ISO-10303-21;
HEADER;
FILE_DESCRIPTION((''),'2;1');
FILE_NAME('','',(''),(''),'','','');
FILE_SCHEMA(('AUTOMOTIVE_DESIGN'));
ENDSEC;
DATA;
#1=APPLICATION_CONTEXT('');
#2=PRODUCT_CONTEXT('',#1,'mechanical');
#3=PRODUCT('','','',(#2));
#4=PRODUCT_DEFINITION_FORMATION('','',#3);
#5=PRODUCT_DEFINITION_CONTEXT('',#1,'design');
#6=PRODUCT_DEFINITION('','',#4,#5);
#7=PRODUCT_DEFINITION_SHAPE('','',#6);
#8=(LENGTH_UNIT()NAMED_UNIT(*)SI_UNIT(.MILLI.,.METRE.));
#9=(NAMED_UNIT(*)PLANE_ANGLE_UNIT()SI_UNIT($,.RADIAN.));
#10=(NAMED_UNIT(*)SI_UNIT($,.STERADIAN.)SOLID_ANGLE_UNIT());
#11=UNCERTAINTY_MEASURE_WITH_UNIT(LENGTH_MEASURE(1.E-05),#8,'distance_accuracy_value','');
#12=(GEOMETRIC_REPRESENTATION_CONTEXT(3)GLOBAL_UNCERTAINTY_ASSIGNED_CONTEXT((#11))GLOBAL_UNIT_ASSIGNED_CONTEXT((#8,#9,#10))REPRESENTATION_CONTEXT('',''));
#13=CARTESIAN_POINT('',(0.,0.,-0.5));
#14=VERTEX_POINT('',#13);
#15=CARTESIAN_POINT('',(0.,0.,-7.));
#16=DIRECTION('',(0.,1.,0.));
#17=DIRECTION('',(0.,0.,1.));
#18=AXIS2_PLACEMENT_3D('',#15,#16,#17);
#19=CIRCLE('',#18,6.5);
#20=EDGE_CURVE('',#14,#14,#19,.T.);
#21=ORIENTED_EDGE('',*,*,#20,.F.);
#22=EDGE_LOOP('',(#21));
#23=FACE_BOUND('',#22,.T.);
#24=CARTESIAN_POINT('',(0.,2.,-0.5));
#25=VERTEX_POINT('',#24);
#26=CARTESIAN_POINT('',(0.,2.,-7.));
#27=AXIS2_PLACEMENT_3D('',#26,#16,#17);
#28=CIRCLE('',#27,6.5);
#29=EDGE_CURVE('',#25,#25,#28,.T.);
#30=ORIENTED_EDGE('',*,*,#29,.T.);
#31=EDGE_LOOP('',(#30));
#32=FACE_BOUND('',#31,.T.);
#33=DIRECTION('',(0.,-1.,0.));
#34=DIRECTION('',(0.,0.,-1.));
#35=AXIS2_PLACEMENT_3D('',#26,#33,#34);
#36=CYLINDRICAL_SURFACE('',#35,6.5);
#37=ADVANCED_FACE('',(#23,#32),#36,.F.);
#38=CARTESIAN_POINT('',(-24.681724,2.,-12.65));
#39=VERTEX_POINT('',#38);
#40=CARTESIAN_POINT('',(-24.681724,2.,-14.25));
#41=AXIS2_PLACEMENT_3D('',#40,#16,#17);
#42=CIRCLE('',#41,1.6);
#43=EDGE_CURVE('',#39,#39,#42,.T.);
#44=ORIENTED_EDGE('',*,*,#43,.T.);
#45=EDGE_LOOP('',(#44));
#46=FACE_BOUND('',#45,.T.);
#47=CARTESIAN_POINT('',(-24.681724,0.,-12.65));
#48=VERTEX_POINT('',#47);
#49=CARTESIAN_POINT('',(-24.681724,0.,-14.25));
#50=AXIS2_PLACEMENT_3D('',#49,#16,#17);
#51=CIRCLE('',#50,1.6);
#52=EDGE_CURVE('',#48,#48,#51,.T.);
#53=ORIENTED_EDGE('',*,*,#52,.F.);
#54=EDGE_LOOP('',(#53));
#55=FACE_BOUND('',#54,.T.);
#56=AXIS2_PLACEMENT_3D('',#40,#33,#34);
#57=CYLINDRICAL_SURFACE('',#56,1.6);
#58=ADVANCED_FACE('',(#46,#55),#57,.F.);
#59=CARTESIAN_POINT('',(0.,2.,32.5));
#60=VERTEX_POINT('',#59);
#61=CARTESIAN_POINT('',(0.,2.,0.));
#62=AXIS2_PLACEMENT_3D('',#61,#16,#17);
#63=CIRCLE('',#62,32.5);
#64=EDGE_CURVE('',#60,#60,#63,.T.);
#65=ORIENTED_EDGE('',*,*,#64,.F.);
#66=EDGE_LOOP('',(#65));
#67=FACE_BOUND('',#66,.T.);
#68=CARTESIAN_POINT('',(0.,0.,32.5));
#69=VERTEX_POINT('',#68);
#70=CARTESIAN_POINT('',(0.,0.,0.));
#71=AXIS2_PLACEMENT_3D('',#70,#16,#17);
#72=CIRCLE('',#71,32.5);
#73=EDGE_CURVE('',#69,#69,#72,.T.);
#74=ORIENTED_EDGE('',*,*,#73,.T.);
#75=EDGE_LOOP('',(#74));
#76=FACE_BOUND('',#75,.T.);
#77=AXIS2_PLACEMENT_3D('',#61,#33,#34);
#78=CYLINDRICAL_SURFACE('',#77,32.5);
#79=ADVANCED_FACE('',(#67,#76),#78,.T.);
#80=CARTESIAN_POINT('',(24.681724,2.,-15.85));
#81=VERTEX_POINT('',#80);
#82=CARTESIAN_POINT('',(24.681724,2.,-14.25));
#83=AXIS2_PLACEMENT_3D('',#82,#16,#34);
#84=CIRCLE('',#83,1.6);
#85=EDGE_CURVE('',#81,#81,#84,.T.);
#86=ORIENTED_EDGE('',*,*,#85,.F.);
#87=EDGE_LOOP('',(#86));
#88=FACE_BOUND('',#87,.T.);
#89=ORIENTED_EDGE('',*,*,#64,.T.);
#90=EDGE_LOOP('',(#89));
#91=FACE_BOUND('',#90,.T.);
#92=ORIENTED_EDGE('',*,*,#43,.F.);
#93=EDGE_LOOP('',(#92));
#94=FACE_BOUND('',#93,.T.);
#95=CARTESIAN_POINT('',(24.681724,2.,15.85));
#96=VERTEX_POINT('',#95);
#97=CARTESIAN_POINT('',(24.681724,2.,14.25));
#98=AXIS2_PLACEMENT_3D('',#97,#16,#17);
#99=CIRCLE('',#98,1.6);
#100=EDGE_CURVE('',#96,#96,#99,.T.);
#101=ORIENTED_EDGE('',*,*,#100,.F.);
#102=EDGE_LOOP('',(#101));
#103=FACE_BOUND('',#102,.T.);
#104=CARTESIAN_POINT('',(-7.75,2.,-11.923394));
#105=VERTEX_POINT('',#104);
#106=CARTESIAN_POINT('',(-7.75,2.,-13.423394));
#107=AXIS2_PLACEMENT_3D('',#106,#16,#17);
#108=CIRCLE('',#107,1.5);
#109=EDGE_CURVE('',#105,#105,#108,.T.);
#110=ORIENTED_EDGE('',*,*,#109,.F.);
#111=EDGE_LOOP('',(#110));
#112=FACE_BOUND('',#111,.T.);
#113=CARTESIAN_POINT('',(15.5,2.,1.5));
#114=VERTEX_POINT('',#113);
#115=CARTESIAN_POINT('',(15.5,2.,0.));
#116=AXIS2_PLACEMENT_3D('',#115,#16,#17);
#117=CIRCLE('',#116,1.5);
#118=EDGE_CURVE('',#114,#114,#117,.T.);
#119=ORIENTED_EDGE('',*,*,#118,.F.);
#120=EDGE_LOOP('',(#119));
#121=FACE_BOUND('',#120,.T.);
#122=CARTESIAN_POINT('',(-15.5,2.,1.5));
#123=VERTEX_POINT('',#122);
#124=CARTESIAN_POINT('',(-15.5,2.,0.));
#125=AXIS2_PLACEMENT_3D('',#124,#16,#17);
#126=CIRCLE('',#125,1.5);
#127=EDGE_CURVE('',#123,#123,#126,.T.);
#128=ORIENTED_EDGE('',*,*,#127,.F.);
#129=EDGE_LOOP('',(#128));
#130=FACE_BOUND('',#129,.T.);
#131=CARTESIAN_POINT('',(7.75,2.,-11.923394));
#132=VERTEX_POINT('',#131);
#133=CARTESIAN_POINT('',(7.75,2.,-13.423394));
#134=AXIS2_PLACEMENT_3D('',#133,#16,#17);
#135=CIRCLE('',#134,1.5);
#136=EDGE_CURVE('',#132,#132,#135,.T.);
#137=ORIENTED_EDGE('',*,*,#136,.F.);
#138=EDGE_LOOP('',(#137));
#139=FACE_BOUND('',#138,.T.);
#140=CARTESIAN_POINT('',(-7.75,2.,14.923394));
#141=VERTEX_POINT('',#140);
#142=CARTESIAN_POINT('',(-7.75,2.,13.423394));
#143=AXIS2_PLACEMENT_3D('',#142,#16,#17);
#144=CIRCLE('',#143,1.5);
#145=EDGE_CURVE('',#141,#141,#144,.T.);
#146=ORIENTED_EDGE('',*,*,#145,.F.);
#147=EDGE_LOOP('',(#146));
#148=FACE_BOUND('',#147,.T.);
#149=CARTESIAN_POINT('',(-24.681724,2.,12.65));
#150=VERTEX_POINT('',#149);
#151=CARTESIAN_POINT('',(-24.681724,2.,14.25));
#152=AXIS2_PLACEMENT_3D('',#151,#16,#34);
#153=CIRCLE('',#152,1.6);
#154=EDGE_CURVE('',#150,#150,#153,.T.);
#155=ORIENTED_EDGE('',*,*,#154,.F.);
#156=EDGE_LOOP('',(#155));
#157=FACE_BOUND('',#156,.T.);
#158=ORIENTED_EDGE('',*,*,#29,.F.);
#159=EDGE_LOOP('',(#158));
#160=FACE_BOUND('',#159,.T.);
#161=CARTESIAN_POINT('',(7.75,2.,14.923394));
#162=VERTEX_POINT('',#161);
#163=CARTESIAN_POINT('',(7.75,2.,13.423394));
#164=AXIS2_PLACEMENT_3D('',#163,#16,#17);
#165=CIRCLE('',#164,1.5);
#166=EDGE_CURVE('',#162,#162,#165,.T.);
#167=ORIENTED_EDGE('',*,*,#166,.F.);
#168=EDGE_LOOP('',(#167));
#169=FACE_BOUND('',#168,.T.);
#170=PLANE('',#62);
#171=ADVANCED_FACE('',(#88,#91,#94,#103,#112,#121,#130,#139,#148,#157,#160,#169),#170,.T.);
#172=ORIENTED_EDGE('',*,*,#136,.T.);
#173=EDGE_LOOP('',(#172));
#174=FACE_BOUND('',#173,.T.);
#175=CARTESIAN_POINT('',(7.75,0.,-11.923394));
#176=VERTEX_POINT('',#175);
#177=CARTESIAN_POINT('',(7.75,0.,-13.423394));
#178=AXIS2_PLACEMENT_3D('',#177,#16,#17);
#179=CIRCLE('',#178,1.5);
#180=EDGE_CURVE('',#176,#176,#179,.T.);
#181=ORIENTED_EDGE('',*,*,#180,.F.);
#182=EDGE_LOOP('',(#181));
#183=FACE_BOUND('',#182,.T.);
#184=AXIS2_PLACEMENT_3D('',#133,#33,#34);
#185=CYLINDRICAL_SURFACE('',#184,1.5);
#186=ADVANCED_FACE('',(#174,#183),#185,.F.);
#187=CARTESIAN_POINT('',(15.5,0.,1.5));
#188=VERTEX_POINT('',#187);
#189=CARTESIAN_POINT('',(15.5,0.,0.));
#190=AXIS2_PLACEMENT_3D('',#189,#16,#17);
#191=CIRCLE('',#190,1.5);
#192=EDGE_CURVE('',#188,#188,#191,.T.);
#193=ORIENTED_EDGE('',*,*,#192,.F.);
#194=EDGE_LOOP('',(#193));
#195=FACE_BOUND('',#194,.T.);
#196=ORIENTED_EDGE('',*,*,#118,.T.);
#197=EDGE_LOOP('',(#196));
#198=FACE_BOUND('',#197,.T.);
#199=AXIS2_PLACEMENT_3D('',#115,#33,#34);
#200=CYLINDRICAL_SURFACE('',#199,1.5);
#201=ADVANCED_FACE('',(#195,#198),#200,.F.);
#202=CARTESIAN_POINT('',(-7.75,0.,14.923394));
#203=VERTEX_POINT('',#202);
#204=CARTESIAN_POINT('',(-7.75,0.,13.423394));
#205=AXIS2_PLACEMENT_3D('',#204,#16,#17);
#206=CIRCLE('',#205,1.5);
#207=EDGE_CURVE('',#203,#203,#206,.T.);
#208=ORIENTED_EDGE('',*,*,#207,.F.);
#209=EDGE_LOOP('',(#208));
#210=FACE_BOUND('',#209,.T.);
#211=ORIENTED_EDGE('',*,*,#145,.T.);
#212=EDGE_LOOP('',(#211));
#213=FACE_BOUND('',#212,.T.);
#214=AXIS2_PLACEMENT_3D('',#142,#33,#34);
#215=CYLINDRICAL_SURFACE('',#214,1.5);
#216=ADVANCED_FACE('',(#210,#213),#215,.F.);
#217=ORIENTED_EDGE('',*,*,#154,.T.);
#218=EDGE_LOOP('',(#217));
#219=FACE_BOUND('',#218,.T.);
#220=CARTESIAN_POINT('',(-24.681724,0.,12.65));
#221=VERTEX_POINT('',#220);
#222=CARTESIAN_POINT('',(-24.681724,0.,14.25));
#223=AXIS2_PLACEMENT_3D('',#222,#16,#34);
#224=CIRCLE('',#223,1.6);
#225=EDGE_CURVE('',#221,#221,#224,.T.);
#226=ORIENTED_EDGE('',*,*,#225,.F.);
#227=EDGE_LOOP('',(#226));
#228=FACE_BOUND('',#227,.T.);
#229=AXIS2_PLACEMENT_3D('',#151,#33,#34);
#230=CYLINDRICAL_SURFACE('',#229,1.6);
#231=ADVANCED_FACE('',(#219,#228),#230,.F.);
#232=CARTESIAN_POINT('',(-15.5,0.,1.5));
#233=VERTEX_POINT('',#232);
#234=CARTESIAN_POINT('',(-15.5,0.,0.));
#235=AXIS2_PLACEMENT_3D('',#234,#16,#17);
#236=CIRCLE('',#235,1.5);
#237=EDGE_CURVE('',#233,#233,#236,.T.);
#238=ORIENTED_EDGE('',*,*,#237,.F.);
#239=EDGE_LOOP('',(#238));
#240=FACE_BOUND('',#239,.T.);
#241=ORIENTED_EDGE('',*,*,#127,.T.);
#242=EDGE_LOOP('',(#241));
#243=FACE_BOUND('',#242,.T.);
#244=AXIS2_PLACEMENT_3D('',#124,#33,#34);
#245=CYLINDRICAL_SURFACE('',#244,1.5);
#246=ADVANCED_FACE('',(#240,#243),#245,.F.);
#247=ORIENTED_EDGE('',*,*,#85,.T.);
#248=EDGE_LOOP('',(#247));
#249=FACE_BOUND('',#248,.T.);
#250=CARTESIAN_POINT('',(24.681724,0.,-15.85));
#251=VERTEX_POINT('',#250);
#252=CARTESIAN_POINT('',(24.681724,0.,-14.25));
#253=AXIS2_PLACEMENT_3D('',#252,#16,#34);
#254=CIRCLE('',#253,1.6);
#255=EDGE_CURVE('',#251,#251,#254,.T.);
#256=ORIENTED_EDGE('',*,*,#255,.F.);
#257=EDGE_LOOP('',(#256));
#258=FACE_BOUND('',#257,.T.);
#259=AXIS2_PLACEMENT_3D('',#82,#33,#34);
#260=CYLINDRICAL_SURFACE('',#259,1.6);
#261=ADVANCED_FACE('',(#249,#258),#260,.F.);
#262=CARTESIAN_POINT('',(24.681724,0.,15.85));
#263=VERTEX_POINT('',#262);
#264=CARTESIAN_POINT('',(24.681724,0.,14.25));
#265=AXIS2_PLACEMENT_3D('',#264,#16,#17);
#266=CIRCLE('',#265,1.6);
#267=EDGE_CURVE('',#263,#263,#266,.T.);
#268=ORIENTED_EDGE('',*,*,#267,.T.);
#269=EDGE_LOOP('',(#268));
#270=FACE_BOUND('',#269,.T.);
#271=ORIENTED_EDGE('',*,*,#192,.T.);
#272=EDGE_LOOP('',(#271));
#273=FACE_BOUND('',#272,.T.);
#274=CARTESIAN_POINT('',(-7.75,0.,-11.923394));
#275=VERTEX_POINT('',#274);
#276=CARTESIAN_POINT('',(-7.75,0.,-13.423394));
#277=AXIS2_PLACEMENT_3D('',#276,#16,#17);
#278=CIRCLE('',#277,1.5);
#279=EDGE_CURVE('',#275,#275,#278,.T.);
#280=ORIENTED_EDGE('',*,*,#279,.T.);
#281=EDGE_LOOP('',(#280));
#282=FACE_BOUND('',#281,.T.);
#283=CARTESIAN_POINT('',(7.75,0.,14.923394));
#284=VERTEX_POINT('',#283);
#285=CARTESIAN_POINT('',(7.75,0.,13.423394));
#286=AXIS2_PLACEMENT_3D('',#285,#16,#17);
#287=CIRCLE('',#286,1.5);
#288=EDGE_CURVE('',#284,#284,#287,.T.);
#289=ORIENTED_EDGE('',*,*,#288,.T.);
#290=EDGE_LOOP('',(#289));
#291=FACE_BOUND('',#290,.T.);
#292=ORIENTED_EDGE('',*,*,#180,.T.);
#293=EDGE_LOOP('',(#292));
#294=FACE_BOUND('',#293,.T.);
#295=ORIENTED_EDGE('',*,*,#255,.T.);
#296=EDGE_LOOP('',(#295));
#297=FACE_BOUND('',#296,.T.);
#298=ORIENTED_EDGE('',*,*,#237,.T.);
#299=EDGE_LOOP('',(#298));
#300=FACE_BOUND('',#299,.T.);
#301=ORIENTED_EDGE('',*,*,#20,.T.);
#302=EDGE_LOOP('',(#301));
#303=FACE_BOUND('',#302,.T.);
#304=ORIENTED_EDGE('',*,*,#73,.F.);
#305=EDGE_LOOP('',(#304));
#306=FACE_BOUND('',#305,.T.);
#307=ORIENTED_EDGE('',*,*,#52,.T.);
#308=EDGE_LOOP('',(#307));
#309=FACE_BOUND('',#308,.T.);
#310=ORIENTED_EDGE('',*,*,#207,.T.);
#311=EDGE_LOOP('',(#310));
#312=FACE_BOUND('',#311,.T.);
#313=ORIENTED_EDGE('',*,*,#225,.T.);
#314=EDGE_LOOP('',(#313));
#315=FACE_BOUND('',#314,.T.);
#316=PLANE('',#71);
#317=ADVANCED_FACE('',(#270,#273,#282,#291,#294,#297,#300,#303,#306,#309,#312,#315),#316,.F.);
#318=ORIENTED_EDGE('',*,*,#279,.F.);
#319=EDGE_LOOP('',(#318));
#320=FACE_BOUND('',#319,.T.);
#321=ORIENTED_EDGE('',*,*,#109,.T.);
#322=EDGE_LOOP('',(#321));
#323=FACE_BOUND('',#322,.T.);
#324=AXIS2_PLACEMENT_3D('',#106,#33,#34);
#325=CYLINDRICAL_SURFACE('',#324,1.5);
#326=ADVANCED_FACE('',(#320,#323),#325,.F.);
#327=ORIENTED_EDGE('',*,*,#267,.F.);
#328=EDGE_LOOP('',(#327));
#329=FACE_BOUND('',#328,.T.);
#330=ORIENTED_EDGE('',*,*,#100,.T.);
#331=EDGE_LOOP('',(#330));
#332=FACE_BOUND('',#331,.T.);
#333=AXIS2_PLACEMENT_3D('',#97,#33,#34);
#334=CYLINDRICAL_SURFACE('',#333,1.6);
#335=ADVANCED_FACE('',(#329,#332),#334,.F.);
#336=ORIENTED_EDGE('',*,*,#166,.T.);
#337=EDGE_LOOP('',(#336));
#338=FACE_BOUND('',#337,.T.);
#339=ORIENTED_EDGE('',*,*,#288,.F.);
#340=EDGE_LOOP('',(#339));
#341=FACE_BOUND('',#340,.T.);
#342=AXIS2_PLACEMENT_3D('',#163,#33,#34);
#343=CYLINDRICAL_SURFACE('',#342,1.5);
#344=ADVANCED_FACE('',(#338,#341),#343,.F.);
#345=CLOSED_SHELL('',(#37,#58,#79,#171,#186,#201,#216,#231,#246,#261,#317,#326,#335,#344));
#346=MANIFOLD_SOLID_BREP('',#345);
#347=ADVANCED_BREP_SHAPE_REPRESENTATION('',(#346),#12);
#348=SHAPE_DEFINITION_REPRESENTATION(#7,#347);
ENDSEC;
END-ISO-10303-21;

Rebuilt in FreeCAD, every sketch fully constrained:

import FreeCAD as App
import Part
import Sketcher
from FreeCAD import Vector

doc = App.newDocument("Part")
body = doc.addObject("PartDesign::Body", "Body")

sketch1 = doc.addObject("Sketcher::SketchObject", "Sketch")
body.addObject(sketch1)
sketch1.AttachmentSupport = (doc.XZ_Plane, [""])
sketch1.MapMode = "FlatFace"
sketch1.addGeometry([
    Part.Circle(Vector(0, 0, 0), Vector(0, 0, 1), 32.5),
    Part.Circle(Vector(-24.7, -14.2, 0), Vector(0, 0, 1), 1.6),
    Part.Circle(Vector(-7.8, -13.4, 0), Vector(0, 0, 1), 1.5),
    Part.Circle(Vector(0, -7, 0), Vector(0, 0, 1), 6.5),
    Part.Circle(Vector(-15.5, 0, 0), Vector(0, 0, 1), 1.5),
    Part.Circle(Vector(-24.7, 14.2, 0), Vector(0, 0, 1), 1.6),
    Part.Circle(Vector(-7.8, 13.4, 0), Vector(0, 0, 1), 1.5),
    Part.Circle(Vector(7.8, -13.4, 0), Vector(0, 0, 1), 1.5),
    Part.Circle(Vector(24.7, -14.2, 0), Vector(0, 0, 1), 1.6),
    Part.Circle(Vector(15.5, 0, 0), Vector(0, 0, 1), 1.5),
    Part.Circle(Vector(7.8, 13.4, 0), Vector(0, 0, 1), 1.5),
    Part.Circle(Vector(24.7, 14.2, 0), Vector(0, 0, 1), 1.6),
], False)
sketch1.addConstraint([
    Sketcher.Constraint("Coincident", 0, 3, -1, 1),
    Sketcher.Constraint("Equal", 2, 4),
    Sketcher.Constraint("Equal", 1, 5),
    Sketcher.Constraint("Equal", 4, 6),
    Sketcher.Constraint("Equal", 6, 7),
    Sketcher.Constraint("Equal", 5, 8),
    Sketcher.Constraint("Equal", 7, 9),
    Sketcher.Constraint("Equal", 9, 10),
    Sketcher.Constraint("Equal", 8, 11),
    Sketcher.Constraint("Symmetric", 6, 3, 7, 3, -1, 1),
    Sketcher.Constraint("Symmetric", 5, 3, 8, 3, -1, 1),
    Sketcher.Constraint("Symmetric", 4, 3, 9, 3, -1, 1),
    Sketcher.Constraint("Symmetric", 2, 3, 10, 3, -1, 1),
    Sketcher.Constraint("Symmetric", 1, 3, 11, 3, -1, 1),
    Sketcher.Constraint("Symmetric", 2, 3, 7, 3, -2),
    Sketcher.Constraint("Symmetric", 1, 3, 8, 3, -2),
    Sketcher.Constraint("PointOnObject", 3, 3, -2),
    Sketcher.Constraint("PointOnObject", 4, 3, -1),
    Sketcher.Constraint("Diameter", 0, 65.0),
    Sketcher.Constraint("Diameter", 2, 3.0),
    Sketcher.Constraint("Diameter", 3, 13.0),
    Sketcher.Constraint("Diameter", 1, 3.2),
    Sketcher.Constraint("DistanceY", 3, 3, -1, 1, 7.0),
    Sketcher.Constraint("DistanceX", 4, 3, -1, 1, 15.5),
    Sketcher.Constraint("DistanceY", 1, 3, 5, 3, 28.5),
    Sketcher.Constraint("DistanceX", 2, 3, 7, 3, 15.5),
    Sketcher.Constraint("DistanceX", 1, 3, -1, 1, 24.681724),
    Sketcher.Constraint("DistanceY", 2, 3, -1, 1, 13.423394),
])
pad1 = doc.addObject("PartDesign::Pad", "Pad")
body.addObject(pad1)
pad1.Profile = sketch1
pad1.Length = 2
pad1.Reversed = True

doc.recompute()
